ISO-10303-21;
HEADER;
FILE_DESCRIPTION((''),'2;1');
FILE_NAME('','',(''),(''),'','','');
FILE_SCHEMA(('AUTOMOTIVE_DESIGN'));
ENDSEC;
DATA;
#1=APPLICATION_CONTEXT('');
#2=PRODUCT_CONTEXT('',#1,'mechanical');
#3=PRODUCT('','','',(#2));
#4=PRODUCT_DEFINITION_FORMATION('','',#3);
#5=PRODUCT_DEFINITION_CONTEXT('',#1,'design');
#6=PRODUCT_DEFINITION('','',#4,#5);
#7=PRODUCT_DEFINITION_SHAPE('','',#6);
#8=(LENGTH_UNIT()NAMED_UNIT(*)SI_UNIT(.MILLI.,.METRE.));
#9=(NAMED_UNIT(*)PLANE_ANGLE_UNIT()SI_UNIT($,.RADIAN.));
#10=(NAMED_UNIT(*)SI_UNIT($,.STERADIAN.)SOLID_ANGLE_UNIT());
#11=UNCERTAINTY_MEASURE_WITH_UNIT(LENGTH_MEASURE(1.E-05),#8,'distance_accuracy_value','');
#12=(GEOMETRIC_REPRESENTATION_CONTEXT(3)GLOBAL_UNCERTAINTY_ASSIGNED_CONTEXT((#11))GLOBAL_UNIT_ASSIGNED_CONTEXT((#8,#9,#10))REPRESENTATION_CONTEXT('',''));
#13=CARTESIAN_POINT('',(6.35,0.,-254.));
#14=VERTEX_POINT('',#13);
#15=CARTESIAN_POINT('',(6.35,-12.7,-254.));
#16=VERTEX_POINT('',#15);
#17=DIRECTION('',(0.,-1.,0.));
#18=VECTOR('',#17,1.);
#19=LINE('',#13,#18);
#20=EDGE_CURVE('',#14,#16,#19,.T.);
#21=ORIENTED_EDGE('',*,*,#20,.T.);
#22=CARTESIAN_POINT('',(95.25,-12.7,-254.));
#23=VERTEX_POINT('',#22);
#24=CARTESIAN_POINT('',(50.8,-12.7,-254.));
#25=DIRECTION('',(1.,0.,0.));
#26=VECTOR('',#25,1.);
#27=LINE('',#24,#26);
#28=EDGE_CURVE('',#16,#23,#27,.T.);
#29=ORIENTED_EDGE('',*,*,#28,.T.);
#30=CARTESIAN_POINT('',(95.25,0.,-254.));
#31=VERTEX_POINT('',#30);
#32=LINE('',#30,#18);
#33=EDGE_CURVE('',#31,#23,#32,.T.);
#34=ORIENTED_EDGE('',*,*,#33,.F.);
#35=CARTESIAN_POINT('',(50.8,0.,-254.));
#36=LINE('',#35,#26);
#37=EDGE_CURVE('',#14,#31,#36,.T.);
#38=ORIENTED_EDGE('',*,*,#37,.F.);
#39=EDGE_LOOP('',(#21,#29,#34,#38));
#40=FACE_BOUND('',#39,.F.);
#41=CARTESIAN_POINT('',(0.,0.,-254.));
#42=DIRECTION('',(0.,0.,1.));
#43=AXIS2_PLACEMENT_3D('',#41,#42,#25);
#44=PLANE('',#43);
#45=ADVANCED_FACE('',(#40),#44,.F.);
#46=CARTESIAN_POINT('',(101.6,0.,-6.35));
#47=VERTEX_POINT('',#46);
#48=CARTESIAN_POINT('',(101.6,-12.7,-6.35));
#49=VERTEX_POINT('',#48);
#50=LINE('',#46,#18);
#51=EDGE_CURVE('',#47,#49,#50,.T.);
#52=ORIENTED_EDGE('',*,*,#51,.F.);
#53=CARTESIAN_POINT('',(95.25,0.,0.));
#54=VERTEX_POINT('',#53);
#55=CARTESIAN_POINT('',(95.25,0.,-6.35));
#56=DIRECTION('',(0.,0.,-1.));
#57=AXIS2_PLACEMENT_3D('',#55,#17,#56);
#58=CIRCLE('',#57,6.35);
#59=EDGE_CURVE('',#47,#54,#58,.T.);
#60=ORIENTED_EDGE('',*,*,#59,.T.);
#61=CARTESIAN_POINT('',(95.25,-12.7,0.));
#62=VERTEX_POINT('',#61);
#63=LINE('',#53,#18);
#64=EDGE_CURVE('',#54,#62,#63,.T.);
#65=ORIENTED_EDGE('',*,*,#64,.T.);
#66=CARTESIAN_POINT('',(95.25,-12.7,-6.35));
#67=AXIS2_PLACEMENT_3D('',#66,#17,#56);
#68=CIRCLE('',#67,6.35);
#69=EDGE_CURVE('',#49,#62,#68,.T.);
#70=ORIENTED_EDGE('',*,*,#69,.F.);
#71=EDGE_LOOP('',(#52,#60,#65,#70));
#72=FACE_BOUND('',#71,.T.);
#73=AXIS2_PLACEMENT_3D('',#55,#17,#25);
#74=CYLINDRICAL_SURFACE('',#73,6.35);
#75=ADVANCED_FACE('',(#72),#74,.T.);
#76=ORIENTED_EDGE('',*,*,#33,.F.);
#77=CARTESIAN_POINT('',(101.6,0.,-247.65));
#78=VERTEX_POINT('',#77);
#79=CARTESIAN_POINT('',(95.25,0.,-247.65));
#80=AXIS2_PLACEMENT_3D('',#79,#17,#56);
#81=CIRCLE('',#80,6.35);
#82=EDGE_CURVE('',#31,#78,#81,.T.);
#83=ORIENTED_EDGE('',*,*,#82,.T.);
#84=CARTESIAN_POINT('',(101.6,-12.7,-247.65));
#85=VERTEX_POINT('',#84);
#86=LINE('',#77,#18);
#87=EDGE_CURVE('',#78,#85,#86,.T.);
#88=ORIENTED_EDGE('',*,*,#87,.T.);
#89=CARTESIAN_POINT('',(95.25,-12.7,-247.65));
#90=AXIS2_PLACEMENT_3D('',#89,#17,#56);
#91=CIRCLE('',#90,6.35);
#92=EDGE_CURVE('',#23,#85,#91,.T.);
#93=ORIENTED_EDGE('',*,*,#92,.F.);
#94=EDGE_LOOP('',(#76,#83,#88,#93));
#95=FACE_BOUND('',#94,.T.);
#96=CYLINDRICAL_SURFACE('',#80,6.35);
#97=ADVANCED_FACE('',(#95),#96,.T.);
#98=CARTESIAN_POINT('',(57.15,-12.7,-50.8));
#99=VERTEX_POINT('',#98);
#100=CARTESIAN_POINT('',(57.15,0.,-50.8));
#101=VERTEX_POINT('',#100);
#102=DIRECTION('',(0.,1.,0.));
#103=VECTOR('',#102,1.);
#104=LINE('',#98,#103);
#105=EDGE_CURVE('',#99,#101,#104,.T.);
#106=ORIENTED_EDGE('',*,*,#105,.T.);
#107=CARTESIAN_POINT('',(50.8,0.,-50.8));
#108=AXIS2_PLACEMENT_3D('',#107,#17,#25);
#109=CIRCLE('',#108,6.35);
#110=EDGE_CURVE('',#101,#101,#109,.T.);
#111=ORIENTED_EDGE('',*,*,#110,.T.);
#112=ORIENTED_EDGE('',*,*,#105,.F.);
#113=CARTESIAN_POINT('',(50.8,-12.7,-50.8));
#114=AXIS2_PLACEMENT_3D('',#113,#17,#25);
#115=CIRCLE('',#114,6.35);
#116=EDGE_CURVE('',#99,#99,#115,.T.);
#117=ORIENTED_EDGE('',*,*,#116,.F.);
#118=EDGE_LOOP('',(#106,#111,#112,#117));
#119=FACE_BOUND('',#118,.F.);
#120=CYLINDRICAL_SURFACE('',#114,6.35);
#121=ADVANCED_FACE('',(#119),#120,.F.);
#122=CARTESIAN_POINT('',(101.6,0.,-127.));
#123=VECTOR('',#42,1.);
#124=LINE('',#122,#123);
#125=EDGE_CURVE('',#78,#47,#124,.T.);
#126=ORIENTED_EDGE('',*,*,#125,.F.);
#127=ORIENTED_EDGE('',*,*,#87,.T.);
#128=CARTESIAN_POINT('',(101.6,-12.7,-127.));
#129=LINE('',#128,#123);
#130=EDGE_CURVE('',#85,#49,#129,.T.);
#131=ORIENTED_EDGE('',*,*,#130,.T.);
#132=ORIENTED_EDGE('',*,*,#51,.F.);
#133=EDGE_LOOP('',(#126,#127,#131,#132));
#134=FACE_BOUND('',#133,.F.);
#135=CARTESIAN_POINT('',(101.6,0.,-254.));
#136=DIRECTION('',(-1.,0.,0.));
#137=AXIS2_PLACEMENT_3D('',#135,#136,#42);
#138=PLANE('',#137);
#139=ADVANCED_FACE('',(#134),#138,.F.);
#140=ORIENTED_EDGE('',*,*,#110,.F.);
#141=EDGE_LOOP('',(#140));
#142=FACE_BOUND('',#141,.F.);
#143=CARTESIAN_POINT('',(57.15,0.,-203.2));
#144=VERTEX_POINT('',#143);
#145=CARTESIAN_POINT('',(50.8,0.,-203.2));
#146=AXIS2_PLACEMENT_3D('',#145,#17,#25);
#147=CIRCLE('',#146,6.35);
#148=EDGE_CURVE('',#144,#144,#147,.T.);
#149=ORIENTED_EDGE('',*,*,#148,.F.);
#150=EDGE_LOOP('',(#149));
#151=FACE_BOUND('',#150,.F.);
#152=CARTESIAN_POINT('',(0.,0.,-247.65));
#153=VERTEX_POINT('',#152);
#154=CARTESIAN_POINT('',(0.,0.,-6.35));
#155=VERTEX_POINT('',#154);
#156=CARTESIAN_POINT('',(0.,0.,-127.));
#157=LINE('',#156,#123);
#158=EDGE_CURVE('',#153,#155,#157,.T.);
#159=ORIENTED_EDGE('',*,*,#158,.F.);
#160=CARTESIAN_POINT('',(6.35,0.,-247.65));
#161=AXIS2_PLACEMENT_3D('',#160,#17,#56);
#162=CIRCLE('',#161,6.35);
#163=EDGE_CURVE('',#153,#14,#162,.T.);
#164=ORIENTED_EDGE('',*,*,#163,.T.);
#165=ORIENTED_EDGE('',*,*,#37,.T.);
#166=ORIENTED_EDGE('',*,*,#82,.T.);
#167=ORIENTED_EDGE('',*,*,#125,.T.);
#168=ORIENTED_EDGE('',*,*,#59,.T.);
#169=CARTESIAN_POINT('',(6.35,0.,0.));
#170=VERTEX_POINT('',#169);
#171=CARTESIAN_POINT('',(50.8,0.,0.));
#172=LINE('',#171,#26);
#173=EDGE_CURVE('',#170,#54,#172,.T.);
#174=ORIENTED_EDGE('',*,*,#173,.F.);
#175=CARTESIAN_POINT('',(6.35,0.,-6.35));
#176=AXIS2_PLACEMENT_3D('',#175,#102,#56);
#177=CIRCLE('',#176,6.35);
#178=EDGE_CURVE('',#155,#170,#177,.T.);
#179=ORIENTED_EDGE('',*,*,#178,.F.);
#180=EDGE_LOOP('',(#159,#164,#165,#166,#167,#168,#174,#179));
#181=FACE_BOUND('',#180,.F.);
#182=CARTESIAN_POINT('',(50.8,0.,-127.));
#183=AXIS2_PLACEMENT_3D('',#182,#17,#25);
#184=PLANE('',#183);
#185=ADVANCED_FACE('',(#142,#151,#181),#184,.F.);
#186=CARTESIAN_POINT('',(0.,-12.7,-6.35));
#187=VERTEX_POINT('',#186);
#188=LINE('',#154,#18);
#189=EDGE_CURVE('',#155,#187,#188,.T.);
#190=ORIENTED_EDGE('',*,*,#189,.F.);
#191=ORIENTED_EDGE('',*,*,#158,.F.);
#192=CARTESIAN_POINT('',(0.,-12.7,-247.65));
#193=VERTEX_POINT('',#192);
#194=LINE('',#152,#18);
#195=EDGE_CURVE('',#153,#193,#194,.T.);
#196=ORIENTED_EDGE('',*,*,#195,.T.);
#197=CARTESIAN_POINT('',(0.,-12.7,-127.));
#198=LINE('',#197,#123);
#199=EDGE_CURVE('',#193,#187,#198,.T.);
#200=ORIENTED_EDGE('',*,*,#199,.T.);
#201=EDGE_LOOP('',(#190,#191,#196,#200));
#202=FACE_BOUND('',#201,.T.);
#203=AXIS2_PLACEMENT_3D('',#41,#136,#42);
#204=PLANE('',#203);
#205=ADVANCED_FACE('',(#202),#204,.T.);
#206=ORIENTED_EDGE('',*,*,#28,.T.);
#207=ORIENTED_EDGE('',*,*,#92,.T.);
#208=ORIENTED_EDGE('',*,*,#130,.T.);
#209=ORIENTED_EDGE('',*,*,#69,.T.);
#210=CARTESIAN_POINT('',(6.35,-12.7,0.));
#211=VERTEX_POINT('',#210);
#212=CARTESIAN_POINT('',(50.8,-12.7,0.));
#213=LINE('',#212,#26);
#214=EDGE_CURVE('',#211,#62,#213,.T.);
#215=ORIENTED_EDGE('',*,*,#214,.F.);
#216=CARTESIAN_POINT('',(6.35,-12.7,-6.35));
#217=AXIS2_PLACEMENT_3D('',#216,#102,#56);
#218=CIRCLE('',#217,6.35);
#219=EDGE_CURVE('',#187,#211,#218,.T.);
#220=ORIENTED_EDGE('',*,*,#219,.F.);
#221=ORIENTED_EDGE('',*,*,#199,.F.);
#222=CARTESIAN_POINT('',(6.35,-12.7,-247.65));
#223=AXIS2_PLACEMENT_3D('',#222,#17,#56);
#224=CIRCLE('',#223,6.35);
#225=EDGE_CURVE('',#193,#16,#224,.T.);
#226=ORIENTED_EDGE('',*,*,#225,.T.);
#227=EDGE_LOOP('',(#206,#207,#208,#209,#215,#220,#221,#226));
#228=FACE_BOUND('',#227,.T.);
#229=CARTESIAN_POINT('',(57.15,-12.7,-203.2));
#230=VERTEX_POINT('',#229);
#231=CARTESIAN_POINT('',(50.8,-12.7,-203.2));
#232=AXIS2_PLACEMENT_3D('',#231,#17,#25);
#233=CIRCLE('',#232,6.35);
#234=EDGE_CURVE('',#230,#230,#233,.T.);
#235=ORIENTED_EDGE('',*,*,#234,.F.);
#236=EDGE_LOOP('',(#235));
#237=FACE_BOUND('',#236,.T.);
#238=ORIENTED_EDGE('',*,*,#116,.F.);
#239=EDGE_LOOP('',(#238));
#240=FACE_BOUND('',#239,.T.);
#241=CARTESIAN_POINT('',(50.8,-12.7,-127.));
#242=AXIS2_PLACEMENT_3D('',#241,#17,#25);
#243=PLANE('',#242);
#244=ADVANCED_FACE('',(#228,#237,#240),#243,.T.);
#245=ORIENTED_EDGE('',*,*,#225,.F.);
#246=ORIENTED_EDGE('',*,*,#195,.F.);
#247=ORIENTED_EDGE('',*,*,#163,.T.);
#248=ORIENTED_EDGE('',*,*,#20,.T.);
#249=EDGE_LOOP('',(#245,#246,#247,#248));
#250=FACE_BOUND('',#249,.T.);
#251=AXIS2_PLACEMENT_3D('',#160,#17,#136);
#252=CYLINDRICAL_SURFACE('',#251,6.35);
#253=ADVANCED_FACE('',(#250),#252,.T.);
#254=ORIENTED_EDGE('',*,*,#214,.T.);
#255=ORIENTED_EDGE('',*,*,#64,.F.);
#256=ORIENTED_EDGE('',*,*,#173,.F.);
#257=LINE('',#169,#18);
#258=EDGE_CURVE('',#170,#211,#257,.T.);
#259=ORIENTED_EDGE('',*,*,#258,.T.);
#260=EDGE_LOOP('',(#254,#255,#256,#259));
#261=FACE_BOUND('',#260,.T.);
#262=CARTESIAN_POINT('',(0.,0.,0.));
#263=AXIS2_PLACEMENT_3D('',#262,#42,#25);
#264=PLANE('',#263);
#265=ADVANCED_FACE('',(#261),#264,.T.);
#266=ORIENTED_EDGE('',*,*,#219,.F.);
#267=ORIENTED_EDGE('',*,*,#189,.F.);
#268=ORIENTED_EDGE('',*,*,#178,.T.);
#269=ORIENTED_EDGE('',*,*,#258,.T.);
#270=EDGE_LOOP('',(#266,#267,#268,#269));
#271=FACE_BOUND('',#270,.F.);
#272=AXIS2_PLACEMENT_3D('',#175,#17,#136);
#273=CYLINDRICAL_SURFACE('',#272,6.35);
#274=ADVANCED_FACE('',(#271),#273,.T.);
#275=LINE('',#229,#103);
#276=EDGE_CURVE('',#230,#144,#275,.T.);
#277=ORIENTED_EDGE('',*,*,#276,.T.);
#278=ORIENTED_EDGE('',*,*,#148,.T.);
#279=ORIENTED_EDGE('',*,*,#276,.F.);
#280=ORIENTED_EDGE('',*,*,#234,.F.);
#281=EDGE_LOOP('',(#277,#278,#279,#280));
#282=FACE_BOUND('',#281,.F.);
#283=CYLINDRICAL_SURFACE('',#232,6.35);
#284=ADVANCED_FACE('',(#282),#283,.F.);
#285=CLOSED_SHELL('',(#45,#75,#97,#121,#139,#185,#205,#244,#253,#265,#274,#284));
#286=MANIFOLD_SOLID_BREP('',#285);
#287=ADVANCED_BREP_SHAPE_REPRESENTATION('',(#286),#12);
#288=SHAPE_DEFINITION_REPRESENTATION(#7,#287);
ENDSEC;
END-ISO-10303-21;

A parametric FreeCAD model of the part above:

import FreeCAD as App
import Part
import Sketcher
Q = App.Units.Quantity


def edges_at(feature, points):
    """Names of the edges that pass closest to the given points."""
    edges = feature.Shape.Edges
    near = lambda p: min(range(len(edges)), key=lambda i: edges[i].distToShape(Part.Vertex(*p))[0])
    return sorted({f"Edge{near(p) + 1}" for p in points})


def add_polygon(sketch, points):
    """Adds a closed chain of lines whose ends are joined by coincident constraints."""
    first, n = sketch.GeometryCount, len(points)
    for a, b in zip(points, points[1:] + points[:1]):
        sketch.addGeometry(Part.LineSegment(App.Vector(*a, 0), App.Vector(*b, 0)), False)
    for i in range(n):
        sketch.addConstraint(Sketcher.Constraint("Coincident", first + i, 2, first + (i + 1) % n, 1))

doc = App.newDocument("Part")
body = doc.addObject("PartDesign::Body", "Body")

sketch1 = doc.addObject("Sketcher::SketchObject", "Sketch")
body.addObject(sketch1)
sketch1.AttachmentSupport = (doc.XZ_Plane, [""])
sketch1.MapMode = "FlatFace"
add_polygon(sketch1, [(0, 0), (0, -254), (101.6, -254), (101.6, 0)])
sketch1.addConstraint(Sketcher.Constraint("Vertical", 0))
sketch1.addConstraint(Sketcher.Constraint("Horizontal", 1))
sketch1.addConstraint(Sketcher.Constraint("Vertical", 2))
sketch1.addConstraint(Sketcher.Constraint("Horizontal", 3))
sketch1.addConstraint(Sketcher.Constraint("Coincident", 3, 2, -1, 1))
sketch1.addConstraint(Sketcher.Constraint("DistanceX", 1, 1, 1, 2, Q("4 in")))
sketch1.addConstraint(Sketcher.Constraint("DistanceY", 0, 2, 0, 1, Q("10 in")))
pad1 = doc.addObject("PartDesign::Pad", "Pad")
body.addObject(pad1)
pad1.Profile = sketch1
pad1.Length = Q("0.5 in")
doc.recompute()

fillet = doc.addObject("PartDesign::Fillet", "Fillet")
body.addObject(fillet)
fillet.Base = (pad1, edges_at(pad1, [
    (101.6, -6.35, 0),
    (0, -6.35, 0),
    (101.6, -6.35, -254),
    (0, -6.35, -254),
]))
fillet.Radius = Q("0.25 in")

sketch2 = doc.addObject("Sketcher::SketchObject", "Sketch001")
body.addObject(sketch2)
sketch2.AttachmentSupport = (doc.XZ_Plane, [""])
sketch2.MapMode = "FlatFace"
sketch2.AttachmentOffset = App.Placement(App.Vector(0, 0, 0.5 * 25.4), App.Rotation())
sketch2.addGeometry(Part.Circle(App.Vector(50.8, -50.8, 0), App.Vector(0, 0, 1), 6.35), False)
sketch2.addGeometry(Part.Circle(App.Vector(50.8, -203.2, 0), App.Vector(0, 0, 1), 6.35), False)
sketch2.addConstraint(Sketcher.Constraint("Equal", 0, 1))
sketch2.addConstraint(Sketcher.Constraint("Vertical", 0, 3, 1, 3))
sketch2.addConstraint(Sketcher.Constraint("Diameter", 0, Q("0.5 in")))
sketch2.addConstraint(Sketcher.Constraint("DistanceX", -1, 1, 0, 3, Q("2 in")))
sketch2.addConstraint(Sketcher.Constraint("DistanceY", 0, 3, -1, 1, Q("2 in")))
sketch2.addConstraint(Sketcher.Constraint("DistanceY", 1, 3, -1, 1, Q("8 in")))
pocket1 = doc.addObject("PartDesign::Pocket", "Pocket")
body.addObject(pocket1)
pocket1.Profile = sketch2
pocket1.Type = "ThroughAll"

doc.recompute()
